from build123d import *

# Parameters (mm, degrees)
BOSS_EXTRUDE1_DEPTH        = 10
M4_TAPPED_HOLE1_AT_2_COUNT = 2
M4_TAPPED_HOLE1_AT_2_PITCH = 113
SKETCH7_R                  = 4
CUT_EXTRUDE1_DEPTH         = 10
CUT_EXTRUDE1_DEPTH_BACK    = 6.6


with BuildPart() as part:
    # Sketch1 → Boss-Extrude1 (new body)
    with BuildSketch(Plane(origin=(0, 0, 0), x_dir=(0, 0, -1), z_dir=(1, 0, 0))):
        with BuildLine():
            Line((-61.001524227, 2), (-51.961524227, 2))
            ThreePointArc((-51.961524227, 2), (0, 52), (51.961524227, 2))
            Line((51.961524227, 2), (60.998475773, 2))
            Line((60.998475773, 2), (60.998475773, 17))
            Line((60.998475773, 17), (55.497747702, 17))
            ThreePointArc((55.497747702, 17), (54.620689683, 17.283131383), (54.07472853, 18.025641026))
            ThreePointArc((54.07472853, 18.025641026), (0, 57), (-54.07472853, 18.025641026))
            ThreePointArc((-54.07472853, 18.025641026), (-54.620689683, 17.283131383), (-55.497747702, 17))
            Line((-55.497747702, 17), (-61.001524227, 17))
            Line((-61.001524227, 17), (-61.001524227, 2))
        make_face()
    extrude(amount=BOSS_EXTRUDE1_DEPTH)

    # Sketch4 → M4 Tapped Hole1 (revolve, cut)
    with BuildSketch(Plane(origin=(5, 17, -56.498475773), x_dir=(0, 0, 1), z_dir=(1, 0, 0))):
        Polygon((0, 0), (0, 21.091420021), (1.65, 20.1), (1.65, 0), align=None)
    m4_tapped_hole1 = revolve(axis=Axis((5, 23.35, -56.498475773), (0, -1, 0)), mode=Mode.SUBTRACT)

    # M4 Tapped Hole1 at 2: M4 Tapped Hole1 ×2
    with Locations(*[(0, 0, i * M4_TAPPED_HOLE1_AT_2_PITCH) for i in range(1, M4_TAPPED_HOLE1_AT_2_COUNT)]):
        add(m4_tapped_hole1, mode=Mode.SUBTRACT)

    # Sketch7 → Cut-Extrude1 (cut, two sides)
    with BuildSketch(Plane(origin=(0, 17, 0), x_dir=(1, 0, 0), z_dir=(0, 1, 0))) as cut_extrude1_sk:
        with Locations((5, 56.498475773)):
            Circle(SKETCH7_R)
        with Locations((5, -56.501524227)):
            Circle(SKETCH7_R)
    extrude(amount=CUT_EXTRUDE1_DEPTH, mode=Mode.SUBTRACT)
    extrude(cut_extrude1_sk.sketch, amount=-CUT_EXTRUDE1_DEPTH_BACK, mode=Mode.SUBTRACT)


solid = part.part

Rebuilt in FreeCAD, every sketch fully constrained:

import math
import FreeCAD as App
import Part
import Sketcher
Q = App.Units.Quantity

doc = App.newDocument("Part")
body = doc.addObject("PartDesign::Body", "Body")

sketch1 = body.newObject("Sketcher::SketchObject", "Sketch")
sketch1.AttachmentSupport = (doc.getObject("YZ_Plane"), [""])
sketch1.MapMode = "FlatFace"
sketch1.addGeometry([
    Part.LineSegment(App.Vector(2, 61, 0), App.Vector(2, 52, 0)),
    Part.ArcOfCircle(Part.Circle(App.Vector(0, 0, 0), App.Vector(0, 0, 1), 52), math.radians(-88), math.radians(88)),
    Part.LineSegment(App.Vector(2, -52, 0), App.Vector(2, -61, 0)),
    Part.LineSegment(App.Vector(2, -61, 0), App.Vector(17, -61, 0)),
    Part.LineSegment(App.Vector(17, -61, 0), App.Vector(17, -55.5, 0)),
    Part.ArcOfCircle(Part.Circle(App.Vector(18.5, -55.5, 0), App.Vector(0, 0, 1), 1.5), math.radians(108), math.radians(180)),
    Part.ArcOfCircle(Part.Circle(App.Vector(0, 0, 0), App.Vector(0, 0, 1), 57), math.radians(-72), math.radians(72)),
    Part.ArcOfCircle(Part.Circle(App.Vector(18.5, 55.5, 0), App.Vector(0, 0, 1), 1.5), math.radians(180), math.radians(252)),
    Part.LineSegment(App.Vector(17, 55.5, 0), App.Vector(17, 61, 0)),
    Part.LineSegment(App.Vector(17, 61, 0), App.Vector(2, 61, 0)),
], False)
sketch1.addConstraint([
    Sketcher.Constraint("Coincident", 0, 2, 1, 2),
    Sketcher.Constraint("Coincident", 1, 1, 2, 1),
    Sketcher.Constraint("Coincident", 2, 2, 3, 1),
    Sketcher.Constraint("Coincident", 3, 2, 4, 1),
    Sketcher.Constraint("Tangent", 4, 2, 5, 2),
    Sketcher.Constraint("Tangent", 5, 1, 6, 1),
    Sketcher.Constraint("Tangent", 6, 2, 7, 2),
    Sketcher.Constraint("Tangent", 7, 1, 8, 1),
    Sketcher.Constraint("Coincident", 8, 2, 9, 1),
    Sketcher.Constraint("Coincident", 9, 2, 0, 1),
    Sketcher.Constraint("Vertical", 0),
    Sketcher.Constraint("Vertical", 2),
    Sketcher.Constraint("Horizontal", 3),
    Sketcher.Constraint("Vertical", 4),
    Sketcher.Constraint("Vertical", 8),
    Sketcher.Constraint("Horizontal", 9),
    Sketcher.Constraint("Coincident", 1, 3, -1, 1),
    Sketcher.Constraint("Coincident", 6, 3, -1, 1),
    Sketcher.Constraint("Equal", 5, 7),
    Sketcher.Constraint("Vertical", 5, 3, 7, 3),
    Sketcher.Constraint("Vertical", 0, 2, 1, 1),
    Sketcher.Constraint("Radius", 1, Q("52 mm")),
    Sketcher.Constraint("Radius", 6, Q("57 mm")),
    Sketcher.Constraint("Radius", 5, Q("1.5 mm")),
    Sketcher.Constraint("DistanceX", 3, 1, 3, 2, Q("15 mm")),
    Sketcher.Constraint("DistanceX", -1, 1, 0, 2, Q("2 mm")),
    Sketcher.Constraint("DistanceY", 0, 2, 0, 1, Q("9.04 mm")),
    Sketcher.Constraint("DistanceY", 2, 2, 0, 2, Q("112.96 mm")),
])
pad1 = body.newObject("PartDesign::Pad", "Pad")
pad1.Profile = sketch1
pad1.Length = 10

sketch2 = body.newObject("Sketcher::SketchObject", "Sketch001")
sketch2.AttachmentSupport = (doc.getObject("YZ_Plane"), [""])
sketch2.MapMode = "FlatFace"
sketch2.AttachmentOffset = App.Placement(App.Vector(0, 0, 5), App.Rotation())
sketch2.addGeometry([
    Part.LineSegment(App.Vector(-4.1, -56.5, 0), App.Vector(17, -56.5, 0)),
    Part.LineSegment(App.Vector(17, -56.5, 0), App.Vector(17, -54.8, 0)),
    Part.LineSegment(App.Vector(17, -54.8, 0), App.Vector(-3.1, -54.8, 0)),
    Part.LineSegment(App.Vector(-3.1, -54.8, 0), App.Vector(-4.1, -56.5, 0)),
], False)
sketch2.addGeometry(Part.LineSegment(App.Vector(17, -56.5, 0), App.Vector(-4.1, -56.5, 0)), True)
sketch2.addConstraint([
    Sketcher.Constraint("Coincident", 0, 2, 1, 1),
    Sketcher.Constraint("Coincident", 1, 2, 2, 1),
    Sketcher.Constraint("Coincident", 2, 2, 3, 1),
    Sketcher.Constraint("Coincident", 3, 2, 0, 1),
    Sketcher.Constraint("Horizontal", 0),
    Sketcher.Constraint("Vertical", 1),
    Sketcher.Constraint("Horizontal", 2),
    Sketcher.Constraint("Horizontal", 4),
    Sketcher.Constraint("Coincident", 4, 1, 0, 2),
    Sketcher.Constraint("Equal", 0, 4),
    Sketcher.Constraint("Angle", 3, Q("-121 deg")),
    Sketcher.Constraint("DistanceX", 2, 2, 2, 1, Q("20.1 mm")),
    Sketcher.Constraint("DistanceX", -1, 1, 0, 2, Q("17 mm")),
    Sketcher.Constraint("DistanceY", 1, 1, 1, 2, Q("1.65 mm")),
    Sketcher.Constraint("DistanceY", 0, 2, -1, 1, Q("56.498476 mm")),
])
groove = body.newObject("PartDesign::Groove", "Groove")
groove.Profile = sketch2
groove.ReferenceAxis = (sketch2, ["Axis0"])
groove.Angle = 360
doc.recompute()

linearpattern = body.newObject("PartDesign::LinearPattern", "LinearPattern")
linearpattern.Originals = [groove]
linearpattern.Direction = (doc.getObject("Z_Axis"), [""])
linearpattern.Mode = "offset"
linearpattern.Offset = 113
linearpattern.Occurrences = 2
body.Tip = linearpattern

sketch3 = body.newObject("Sketcher::SketchObject", "Sketch002")
sketch3.AttachmentSupport = (doc.getObject("XZ_Plane"), [""])
sketch3.MapMode = "FlatFace"
sketch3.AttachmentOffset = App.Placement(App.Vector(0, 0, -17), App.Rotation())
sketch3.addGeometry([
    Part.Circle(App.Vector(5, -56.5, 0), App.Vector(0, 0, 1), 4),
    Part.Circle(App.Vector(5, 56.5, 0), App.Vector(0, 0, 1), 4),
], False)
sketch3.addConstraint([
    Sketcher.Constraint("Equal", 0, 1),
    Sketcher.Constraint("Vertical", 0, 3, 1, 3),
    Sketcher.Constraint("Diameter", 0, Q("8 mm")),
    Sketcher.Constraint("DistanceX", -1, 1, 0, 3, Q("5 mm")),
    Sketcher.Constraint("DistanceY", 0, 3, 1, 3, Q("113 mm")),
    Sketcher.Constraint("DistanceY", 0, 3, -1, 1, Q("56.498476 mm")),
])
pocket1 = body.newObject("PartDesign::Pocket", "Pocket")
pocket1.Profile = sketch3
pocket1.Type = "TwoLengths"
pocket1.Length = 10
pocket1.Length2 = 6.6

doc.recompute()
